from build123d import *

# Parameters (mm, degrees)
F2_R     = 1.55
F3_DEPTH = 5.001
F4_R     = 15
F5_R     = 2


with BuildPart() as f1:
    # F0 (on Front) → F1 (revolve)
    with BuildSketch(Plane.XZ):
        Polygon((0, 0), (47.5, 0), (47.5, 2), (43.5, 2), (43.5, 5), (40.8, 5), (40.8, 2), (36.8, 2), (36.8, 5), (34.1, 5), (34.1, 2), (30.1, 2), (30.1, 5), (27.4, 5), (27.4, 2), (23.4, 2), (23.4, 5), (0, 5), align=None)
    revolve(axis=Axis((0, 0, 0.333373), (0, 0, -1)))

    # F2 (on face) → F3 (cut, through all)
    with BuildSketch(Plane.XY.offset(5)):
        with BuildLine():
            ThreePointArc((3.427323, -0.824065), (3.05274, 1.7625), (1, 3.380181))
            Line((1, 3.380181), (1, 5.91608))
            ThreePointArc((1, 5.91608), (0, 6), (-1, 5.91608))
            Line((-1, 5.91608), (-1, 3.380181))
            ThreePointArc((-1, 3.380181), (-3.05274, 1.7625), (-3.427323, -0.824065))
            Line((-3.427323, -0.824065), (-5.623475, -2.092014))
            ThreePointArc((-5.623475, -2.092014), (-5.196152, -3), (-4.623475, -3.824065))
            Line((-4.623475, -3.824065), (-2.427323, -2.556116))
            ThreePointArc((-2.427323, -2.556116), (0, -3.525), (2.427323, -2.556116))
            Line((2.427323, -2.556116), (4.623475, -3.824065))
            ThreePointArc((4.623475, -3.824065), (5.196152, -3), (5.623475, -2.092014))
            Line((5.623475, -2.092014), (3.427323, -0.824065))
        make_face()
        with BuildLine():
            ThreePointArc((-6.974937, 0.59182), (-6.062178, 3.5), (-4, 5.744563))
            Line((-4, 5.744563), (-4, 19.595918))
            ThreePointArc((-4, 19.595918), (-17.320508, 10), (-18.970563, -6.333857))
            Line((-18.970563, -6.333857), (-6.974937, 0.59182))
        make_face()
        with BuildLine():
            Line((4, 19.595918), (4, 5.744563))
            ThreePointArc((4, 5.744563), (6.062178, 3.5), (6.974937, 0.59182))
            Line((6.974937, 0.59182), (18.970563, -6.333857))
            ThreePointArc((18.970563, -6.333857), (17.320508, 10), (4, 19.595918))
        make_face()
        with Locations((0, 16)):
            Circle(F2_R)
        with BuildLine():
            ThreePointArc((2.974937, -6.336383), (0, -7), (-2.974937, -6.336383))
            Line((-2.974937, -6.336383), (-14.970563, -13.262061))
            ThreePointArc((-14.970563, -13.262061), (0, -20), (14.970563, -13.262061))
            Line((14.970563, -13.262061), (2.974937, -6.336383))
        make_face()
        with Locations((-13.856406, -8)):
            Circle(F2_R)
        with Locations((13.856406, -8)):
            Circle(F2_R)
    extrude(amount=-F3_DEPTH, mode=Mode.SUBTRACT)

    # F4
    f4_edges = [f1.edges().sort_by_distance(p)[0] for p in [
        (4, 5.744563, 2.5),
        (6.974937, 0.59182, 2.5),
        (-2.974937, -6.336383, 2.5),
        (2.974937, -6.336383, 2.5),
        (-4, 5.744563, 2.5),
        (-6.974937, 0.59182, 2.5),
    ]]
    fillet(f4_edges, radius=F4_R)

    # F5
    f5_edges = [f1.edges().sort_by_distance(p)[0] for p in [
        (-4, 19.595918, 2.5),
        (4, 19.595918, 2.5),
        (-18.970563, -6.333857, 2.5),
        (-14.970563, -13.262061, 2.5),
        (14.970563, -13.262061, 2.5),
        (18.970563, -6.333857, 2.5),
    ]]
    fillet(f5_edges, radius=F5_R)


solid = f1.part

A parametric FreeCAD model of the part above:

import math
import FreeCAD as App
import Part
import Sketcher

V = App.Vector
Q = App.Units.Quantity


def edges_at(feature, points):
    """Names of the edges that pass closest to the given points."""
    edges = feature.Shape.Edges
    near = lambda p: min(range(len(edges)), key=lambda i: edges[i].distToShape(Part.Vertex(*p))[0])
    return sorted({f"Edge{near(p) + 1}" for p in points})


def add_polygon(sketch, points):
    """Adds a closed chain of lines whose ends are joined by coincident constraints."""
    first, n = sketch.GeometryCount, len(points)
    for a, b in zip(points, points[1:] + points[:1]):
        sketch.addGeometry(Part.LineSegment(App.Vector(*a, 0), App.Vector(*b, 0)), False)
    for i in range(n):
        sketch.addConstraint(Sketcher.Constraint("Coincident", first + i, 2, first + (i + 1) % n, 1))

doc = App.newDocument("Part")
body = doc.addObject("PartDesign::Body", "Body")

sketch1 = body.newObject("Sketcher::SketchObject", "Sketch")
sketch1.AttachmentSupport = (doc.getObject("XZ_Plane"), [""])
sketch1.MapMode = "FlatFace"
add_polygon(sketch1, [(0, 0), (47.5, 0), (47.5, 2), (43.5, 2), (43.5, 5), (40.8, 5), (40.8, 2), (36.8, 2), (36.8, 5), (34.1, 5), (34.1, 2), (30.1, 2), (30.1, 5), (27.4, 5), (27.4, 2), (23.4, 2), (23.4, 5), (0, 5)])
sketch1.addConstraint([
    Sketcher.Constraint("Horizontal", 0),
    Sketcher.Constraint("Vertical", 1),
    Sketcher.Constraint("Horizontal", 2),
    Sketcher.Constraint("Vertical", 3),
    Sketcher.Constraint("Horizontal", 4),
    Sketcher.Constraint("Vertical", 5),
    Sketcher.Constraint("Horizontal", 6),
    Sketcher.Constraint("Vertical", 7),
    Sketcher.Constraint("Horizontal", 8),
    Sketcher.Constraint("Vertical", 9),
    Sketcher.Constraint("Horizontal", 10),
    Sketcher.Constraint("Vertical", 11),
    Sketcher.Constraint("Horizontal", 12),
    Sketcher.Constraint("Vertical", 13),
    Sketcher.Constraint("Horizontal", 14),
    Sketcher.Constraint("Vertical", 15),
    Sketcher.Constraint("Horizontal", 16),
    Sketcher.Constraint("Vertical", 17),
    Sketcher.Constraint("Coincident", 17, 2, -1, 1),
    Sketcher.Constraint("Horizontal", 2, 2, 5, 2),
    Sketcher.Constraint("Horizontal", 4, 2, 7, 2),
    Sketcher.Constraint("Horizontal", 6, 2, 9, 2),
    Sketcher.Constraint("Horizontal", 8, 2, 11, 2),
    Sketcher.Constraint("Horizontal", 10, 2, 13, 2),
    Sketcher.Constraint("Horizontal", 12, 2, 15, 2),
    Sketcher.Constraint("Equal", 2, 6),
    Sketcher.Constraint("Equal", 4, 8),
    Sketcher.Constraint("Equal", 6, 10),
    Sketcher.Constraint("Equal", 8, 12),
    Sketcher.Constraint("Equal", 10, 14),
    Sketcher.Constraint("DistanceX", 2, 2, 2, 1, Q("4 mm")),
    Sketcher.Constraint("DistanceY", 1, 1, 1, 2, Q("2 mm")),
    Sketcher.Constraint("DistanceY", 3, 1, 3, 2, Q("3 mm")),
    Sketcher.Constraint("DistanceX", 0, 1, 0, 2, Q("47.5 mm")),
    Sketcher.Constraint("DistanceX", 4, 2, 4, 1, Q("2.7 mm")),
])
revolution = body.newObject("PartDesign::Revolution", "Revolution")
revolution.Profile = sketch1
revolution.ReferenceAxis = (sketch1, ["V_Axis"])
revolution.Angle = 360

sketch2 = body.newObject("Sketcher::SketchObject", "Sketch001")
sketch2.AttachmentSupport = (doc.getObject("XY_Plane"), [""])
sketch2.MapMode = "FlatFace"
sketch2.AttachmentOffset = App.Placement(V(0, 0, 5), App.Rotation())
sketch2.addGeometry([
    Part.ArcOfCircle(Part.Circle(V(0, 0, 0), V(0, 0, 1), 3.5), math.radians(-14), math.radians(74)),
    Part.LineSegment(V(1, 3.4, 0), V(1, 5.9, 0)),
    Part.ArcOfCircle(Part.Circle(V(0, 0, 0), V(0, 0, 1), 6), math.radians(80.41), math.radians(99.59)),
    Part.LineSegment(V(-1, 5.9, 0), V(-1, 3.4, 0)),
    Part.ArcOfCircle(Part.Circle(V(0, 0, 0), V(0, 0, 1), 3.5), math.radians(106), math.radians(194)),
    Part.LineSegment(V(-3.4, -0.8, 0), V(-5.6, -2.1, 0)),
    Part.ArcOfCircle(Part.Circle(V(0, 0, 0), V(0, 0, 1), 6), math.radians(-159.59), math.radians(-140.41)),
    Part.LineSegment(V(-4.6, -3.8, 0), V(-2.4, -2.6, 0)),
    Part.ArcOfCircle(Part.Circle(V(0, 0, 0), V(0, 0, 1), 3.5), math.radians(-134), math.radians(-46)),
    Part.LineSegment(V(2.4, -2.6, 0), V(4.6, -3.8, 0)),
    Part.ArcOfCircle(Part.Circle(V(0, 0, 0), V(0, 0, 1), 6), math.radians(-39.59), math.radians(-20.41)),
    Part.LineSegment(V(5.6, -2.1, 0), V(3.4, -0.8, 0)),
    Part.ArcOfCircle(Part.Circle(V(0, 0, 0), V(0, 0, 1), 7), math.radians(125), math.radians(175)),
    Part.LineSegment(V(-4, 5.7, 0), V(-4, 19.6, 0)),
    Part.ArcOfCircle(Part.Circle(V(0, 0, 0), V(0, 0, 1), 20), math.radians(102), math.radians(198)),
    Part.LineSegment(V(-19, -6.3, 0), V(-7, 0.6, 0)),
    Part.LineSegment(V(4, 19.6, 0), V(4, 5.7, 0)),
    Part.ArcOfCircle(Part.Circle(V(0, 0, 0), V(0, 0, 1), 7), math.radians(5), math.radians(55)),
    Part.LineSegment(V(7, 0.6, 0), V(19, -6.3, 0)),
    Part.ArcOfCircle(Part.Circle(V(0, 0, 0), V(0, 0, 1), 20), math.radians(-18), math.radians(78)),
    Part.Circle(V(0, 16, 0), V(0, 0, 1), 1.6),
    Part.ArcOfCircle(Part.Circle(V(0, 0, 0), V(0, 0, 1), 7), math.radians(-115), math.radians(-65)),
    Part.LineSegment(V(-3, -6.3, 0), V(-15, -13.3, 0)),
    Part.ArcOfCircle(Part.Circle(V(0, 0, 0), V(0, 0, 1), 20), math.radians(-138), math.radians(-42)),
    Part.LineSegment(V(15, -13.3, 0), V(3, -6.3, 0)),
    Part.Circle(V(-13.9, -8, 0), V(0, 0, 1), 1.6),
    Part.Circle(V(13.9, -8, 0), V(0, 0, 1), 1.6),
], False)
sketch2.addConstraint([
    Sketcher.Constraint("Coincident", 0, 2, 1, 1),
    Sketcher.Constraint("Coincident", 1, 2, 2, 1),
    Sketcher.Constraint("Coincident", 2, 2, 3, 1),
    Sketcher.Constraint("Coincident", 3, 2, 4, 1),
    Sketcher.Constraint("Coincident", 4, 2, 5, 1),
    Sketcher.Constraint("Coincident", 5, 2, 6, 1),
    Sketcher.Constraint("Coincident", 6, 2, 7, 1),
    Sketcher.Constraint("Coincident", 7, 2, 8, 1),
    Sketcher.Constraint("Coincident", 8, 2, 9, 1),
    Sketcher.Constraint("Coincident", 9, 2, 10, 1),
    Sketcher.Constraint("Coincident", 10, 2, 11, 1),
    Sketcher.Constraint("Coincident", 11, 2, 0, 1),
    Sketcher.Constraint("Coincident", 12, 1, 13, 1),
    Sketcher.Constraint("Coincident", 13, 2, 14, 1),
    Sketcher.Constraint("Coincident", 14, 2, 15, 1),
    Sketcher.Constraint("Coincident", 15, 2, 12, 2),
    Sketcher.Constraint("Coincident", 16, 2, 17, 2),
    Sketcher.Constraint("Coincident", 17, 1, 18, 1),
    Sketcher.Constraint("Coincident", 18, 2, 19, 1),
    Sketcher.Constraint("Coincident", 19, 2, 16, 1),
    Sketcher.Constraint("Coincident", 21, 1, 22, 1),
    Sketcher.Constraint("Coincident", 22, 2, 23, 1),
    Sketcher.Constraint("Coincident", 23, 2, 24, 1),
    Sketcher.Constraint("Coincident", 24, 2, 21, 2),
    Sketcher.Constraint("Vertical", 1),
    Sketcher.Constraint("Vertical", 3),
    Sketcher.Constraint("Vertical", 13),
    Sketcher.Constraint("Vertical", 16),
    Sketcher.Constraint("Coincident", 0, 3, -1, 1),
    Sketcher.Constraint("Coincident", 4, 3, -1, 1),
    Sketcher.Constraint("Coincident", 8, 3, -1, 1),
    Sketcher.Constraint("Coincident", 12, 3, -1, 1),
    Sketcher.Constraint("Coincident", 14, 3, -1, 1),
    Sketcher.Constraint("Coincident", 17, 3, -1, 1),
    Sketcher.Constraint("Coincident", 19, 3, -1, 1),
    Sketcher.Constraint("Coincident", 21, 3, -1, 1),
    Sketcher.Constraint("Coincident", 23, 3, -1, 1),
    Sketcher.Constraint("Coincident", 6, 3, 4, 3),
    Sketcher.Constraint("Coincident", 10, 3, 0, 3),
    Sketcher.Constraint("Equal", 0, 4),
    Sketcher.Constraint("Equal", 4, 8),
    Sketcher.Constraint("Equal", 6, 10),
    Sketcher.Constraint("Equal", 12, 17),
    Sketcher.Constraint("Equal", 14, 19),
    Sketcher.Constraint("Equal", 17, 21),
    Sketcher.Constraint("Equal", 19, 23),
    Sketcher.Constraint("Equal", 20, 25),
    Sketcher.Constraint("Equal", 25, 26),
    Sketcher.Constraint("Symmetric", 25, 3, 26, 3, -2),
    Sketcher.Constraint("Symmetric", 1, 2, 2, 2, -2),
    Sketcher.Constraint("PointOnObject", 20, 3, -2),
    Sketcher.Constraint("Parallel", 5, 7),
    Sketcher.Constraint("Parallel", 9, 11),
    Sketcher.Constraint("Parallel", 7, 15),
    Sketcher.Constraint("Parallel", 11, 18),
    Sketcher.Constraint("Parallel", 15, 22),
    Sketcher.Constraint("Parallel", 18, 24),
    Sketcher.Constraint("Horizontal", 7, 2, 8, 2),
    Sketcher.Constraint("Horizontal", 6, 2, 9, 2),
    Sketcher.Constraint("Horizontal", 5, 2, 10, 2),
    Sketcher.Constraint("Horizontal", 12, 1, 16, 2),
    Sketcher.Constraint("Horizontal", 15, 2, 17, 1),
    Sketcher.Constraint("Horizontal", 22, 2, 23, 2),
    Sketcher.Constraint("Equal", 5, 7),
    Sketcher.Constraint("Equal", 18, 22),
    Sketcher.Constraint("Radius", 12, Q("6.999999 mm")),
    Sketcher.Constraint("Radius", 14, Q("20 mm")),
    Sketcher.Constraint("Diameter", 20, Q("3.1 mm")),
    Sketcher.Constraint("Angle", 5, Q("-149.999999 deg")),
    Sketcher.Constraint("DistanceY", -1, 1, 20, 3, Q("16 mm")),
    Sketcher.Constraint("DistanceY", 25, 3, -1, 1, Q("8 mm")),
    Sketcher.Constraint("DistanceX", -1, 1, 0, 2, Q("1 mm")),
    Sketcher.Constraint("DistanceX", 12, 1, -1, 1, Q("4 mm")),
    Sketcher.Constraint("Radius", 0, Q("3.524999 mm")),
    Sketcher.Constraint("DistanceX", 5, 2, 6, 2, Q("1 mm")),
    Sketcher.Constraint("DistanceY", 6, 2, 4, 2, Q("3 mm")),
    Sketcher.Constraint("DistanceX", 14, 2, 22, 2, Q("4 mm")),
    Sketcher.Constraint("DistanceY", 1, 1, 1, 2, Q("2.535899 mm")),
    Sketcher.Constraint("Radius", 2, Q("6.000015 mm")),
    Sketcher.Constraint("DistanceX", 25, 3, -1, 1, Q("13.856406 mm")),
])
pocket1 = body.newObject("PartDesign::Pocket", "Pocket")
pocket1.Profile = sketch2
pocket1.Type = "ThroughAll"
doc.recompute()

fillet = body.newObject("PartDesign::Fillet", "Fillet")
fillet.Base = (pocket1, edges_at(pocket1, [
    (4, 5.745, 2.5),
    (6.975, 0.592, 2.5),
    (-2.975, -6.336, 2.5),
    (2.975, -6.336, 2.5),
    (-4, 5.745, 2.5),
    (-6.975, 0.592, 2.5),
]))
fillet.Radius = 15
doc.recompute()

fillet2 = body.newObject("PartDesign::Fillet", "Fillet001")
fillet2.Base = (fillet, edges_at(fillet, [
    (-4, 19.596, 2.5),
    (4, 19.596, 2.5),
    (-18.971, -6.334, 2.5),
    (-14.971, -13.262, 2.5),
    (14.971, -13.262, 2.5),
    (18.971, -6.334, 2.5),
]))
fillet2.Radius = 2

doc.recompute()
